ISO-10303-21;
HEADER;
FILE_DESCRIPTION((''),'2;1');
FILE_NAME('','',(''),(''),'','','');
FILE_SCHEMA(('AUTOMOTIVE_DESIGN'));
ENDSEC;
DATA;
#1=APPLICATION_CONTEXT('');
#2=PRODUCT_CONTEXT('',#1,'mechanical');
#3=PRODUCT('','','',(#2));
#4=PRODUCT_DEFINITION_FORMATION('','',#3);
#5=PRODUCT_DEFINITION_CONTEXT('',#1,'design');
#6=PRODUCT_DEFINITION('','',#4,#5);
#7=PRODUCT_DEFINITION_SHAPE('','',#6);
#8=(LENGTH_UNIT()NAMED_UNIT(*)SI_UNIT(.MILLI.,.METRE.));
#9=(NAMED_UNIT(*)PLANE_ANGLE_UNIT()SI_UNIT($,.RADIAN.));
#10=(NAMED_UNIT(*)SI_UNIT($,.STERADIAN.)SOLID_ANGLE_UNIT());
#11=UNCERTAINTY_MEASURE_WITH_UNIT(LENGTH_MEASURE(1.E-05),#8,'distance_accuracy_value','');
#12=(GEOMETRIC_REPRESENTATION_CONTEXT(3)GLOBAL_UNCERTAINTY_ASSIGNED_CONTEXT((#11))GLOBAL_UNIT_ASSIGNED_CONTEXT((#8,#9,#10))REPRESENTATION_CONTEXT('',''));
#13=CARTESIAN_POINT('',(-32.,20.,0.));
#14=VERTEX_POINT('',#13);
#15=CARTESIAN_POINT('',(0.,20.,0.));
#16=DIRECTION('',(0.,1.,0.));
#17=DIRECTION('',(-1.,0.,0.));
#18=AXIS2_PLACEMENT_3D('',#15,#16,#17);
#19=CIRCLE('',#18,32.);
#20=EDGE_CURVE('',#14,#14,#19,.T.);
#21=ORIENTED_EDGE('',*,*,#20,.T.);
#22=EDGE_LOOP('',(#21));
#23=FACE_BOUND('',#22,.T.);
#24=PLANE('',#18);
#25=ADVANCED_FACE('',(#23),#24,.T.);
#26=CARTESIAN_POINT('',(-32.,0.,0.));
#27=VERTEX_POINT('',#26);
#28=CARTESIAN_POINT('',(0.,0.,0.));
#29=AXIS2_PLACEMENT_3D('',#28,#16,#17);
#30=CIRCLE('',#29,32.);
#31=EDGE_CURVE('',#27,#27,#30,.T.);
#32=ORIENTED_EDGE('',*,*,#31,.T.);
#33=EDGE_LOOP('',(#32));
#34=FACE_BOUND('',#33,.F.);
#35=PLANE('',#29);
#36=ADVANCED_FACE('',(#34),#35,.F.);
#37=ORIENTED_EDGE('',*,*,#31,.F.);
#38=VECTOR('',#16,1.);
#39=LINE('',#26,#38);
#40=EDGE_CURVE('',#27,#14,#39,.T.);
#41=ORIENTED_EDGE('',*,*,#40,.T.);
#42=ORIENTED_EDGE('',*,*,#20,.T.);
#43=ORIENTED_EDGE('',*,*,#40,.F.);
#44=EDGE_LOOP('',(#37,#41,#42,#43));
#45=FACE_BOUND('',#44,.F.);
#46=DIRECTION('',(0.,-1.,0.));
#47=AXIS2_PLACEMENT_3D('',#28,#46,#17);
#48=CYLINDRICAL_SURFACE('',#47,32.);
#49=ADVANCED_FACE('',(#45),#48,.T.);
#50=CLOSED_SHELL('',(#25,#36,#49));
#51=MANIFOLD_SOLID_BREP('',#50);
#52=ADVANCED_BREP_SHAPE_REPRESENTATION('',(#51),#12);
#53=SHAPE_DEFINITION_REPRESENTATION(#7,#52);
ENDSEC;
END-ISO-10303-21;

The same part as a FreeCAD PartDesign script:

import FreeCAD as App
import Part
import Sketcher

V = App.Vector

doc = App.newDocument("Part")
body = doc.addObject("PartDesign::Body", "Body")

# Sketch on XZ plane
sketch1 = body.newObject("Sketcher::SketchObject", "Sketch")
sketch1.AttachmentSupport = (doc.getObject("XZ_Plane"), [""])
sketch1.MapMode = "FlatFace"
sketch1.addGeometry(Part.Circle(V(0, 0, 0), V(0, 0, 1), 32), False)
sketch1.addConstraint([
    Sketcher.Constraint("Coincident", 0, 3, -1, 1),
    Sketcher.Constraint("Diameter", 0, 64.0),
])
pad1 = body.newObject("PartDesign::Pad", "Pad")
pad1.Profile = sketch1
pad1.Length = 20
pad1.Reversed = True

doc.recompute()
